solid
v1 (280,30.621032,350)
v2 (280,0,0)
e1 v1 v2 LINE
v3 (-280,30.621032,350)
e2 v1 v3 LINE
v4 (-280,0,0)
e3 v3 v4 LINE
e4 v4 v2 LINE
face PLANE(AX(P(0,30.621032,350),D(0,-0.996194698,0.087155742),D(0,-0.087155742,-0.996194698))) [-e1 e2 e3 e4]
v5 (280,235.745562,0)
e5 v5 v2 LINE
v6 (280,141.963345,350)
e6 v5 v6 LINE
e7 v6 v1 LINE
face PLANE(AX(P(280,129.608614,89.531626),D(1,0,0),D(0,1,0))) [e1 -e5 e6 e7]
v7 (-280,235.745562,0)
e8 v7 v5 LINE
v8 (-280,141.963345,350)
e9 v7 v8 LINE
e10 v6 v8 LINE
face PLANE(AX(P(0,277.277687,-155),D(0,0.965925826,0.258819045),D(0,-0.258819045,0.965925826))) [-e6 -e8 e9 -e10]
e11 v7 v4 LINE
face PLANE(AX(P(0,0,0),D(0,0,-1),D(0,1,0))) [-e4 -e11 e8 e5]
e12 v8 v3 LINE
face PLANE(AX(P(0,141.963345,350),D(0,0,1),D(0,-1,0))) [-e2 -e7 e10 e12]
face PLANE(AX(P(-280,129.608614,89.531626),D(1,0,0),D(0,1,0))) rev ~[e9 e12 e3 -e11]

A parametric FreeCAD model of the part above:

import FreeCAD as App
import Part
import Sketcher
Q = App.Units.Quantity


def add_polygon(sketch, points):
    """Adds a closed chain of lines whose ends are joined by coincident constraints."""
    first, n = sketch.GeometryCount, len(points)
    for a, b in zip(points, points[1:] + points[:1]):
        sketch.addGeometry(Part.LineSegment(App.Vector(*a, 0), App.Vector(*b, 0)), False)
    for i in range(n):
        sketch.addConstraint(Sketcher.Constraint("Coincident", first + i, 2, first + (i + 1) % n, 1))

doc = App.newDocument("Part")
params = doc.addObject("Spreadsheet::Sheet", "Params")
for row, (alias, value) in enumerate([
    ("sketch1_width", "100 mm"),
    ("sketch1_width2", "105 mm"),
    ("pad1_length", "560 mm"),
    ("sketch2_width", "105 mm"),
], start=1):
    params.set(f"A{row}", alias)
    params.set(f"B{row}", "=" + value)
    params.setAlias(f"B{row}", alias)

body = doc.addObject("PartDesign::Body", "Body")

# Sketch on YZ plane
sketch1 = body.newObject("Sketcher::SketchObject", "Sketch")
sketch1.AttachmentSupport = (doc.getObject("YZ_Plane"), [""])
sketch1.MapMode = "FlatFace"
add_polygon(sketch1, [(31, 350), (0, 0), (100, 0), (172, -155), (277, -155), (142, 350)])  # lines 0-5
sketch1.addConstraint(Sketcher.Constraint("Horizontal", 1))
sketch1.addConstraint(Sketcher.Constraint("Horizontal", 3))
sketch1.addConstraint(Sketcher.Constraint("Horizontal", 5))
sketch1.addConstraint(Sketcher.Constraint("Coincident", 0, 2, -1, 1))
sketch1.addConstraint(Sketcher.Constraint("DistanceX", 1, 1, 1, 2, Q("100 mm")))
sketch1.addConstraint(Sketcher.Constraint("DistanceX", 3, 1, 3, 2, Q("105 mm")))
sketch1.addConstraint(Sketcher.Constraint("Angle", 0, Q("-95 deg")))
sketch1.addConstraint(Sketcher.Constraint("Angle", 2, Q("-65 deg")))
sketch1.addConstraint(Sketcher.Constraint("Angle", 4, Q("105 deg")))
sketch1.addConstraint(Sketcher.Constraint("DistanceY", 2, 2, -1, 1, Q("155 mm")))
sketch1.addConstraint(Sketcher.Constraint("DistanceY", -1, 1, 4, 2, Q("350 mm")))
sketch1.setExpression("Constraints[10]", "Params.sketch1_width")
sketch1.setExpression("Constraints[11]", "Params.sketch1_width2")
pad1 = body.newObject("PartDesign::Pad", "Pad")
pad1.Profile = sketch1
pad1.setExpression("Length", "Params.pad1_length")
pad1.Midplane = True

# Sketch on YZ plane
sketch2 = body.newObject("Sketcher::SketchObject", "Sketch001")
sketch2.AttachmentSupport = (doc.getObject("YZ_Plane"), [""])
sketch2.MapMode = "FlatFace"
sketch2.AttachmentOffset = App.Placement(App.Vector(0, 0, -280), App.Rotation())
add_polygon(sketch2, [(172, -155), (100, 0), (236, 0), (277, -155)])  # lines 0-3
sketch2.addConstraint(Sketcher.Constraint("Horizontal", 1))
sketch2.addConstraint(Sketcher.Constraint("Horizontal", 3))
sketch2.addConstraint(Sketcher.Constraint("PointOnObject", 0, 2, -1))
sketch2.addConstraint(Sketcher.Constraint("DistanceX", 3, 2, 3, 1, Q("105 mm")))
sketch2.addConstraint(Sketcher.Constraint("Angle", 0, Q("115 deg")))
sketch2.addConstraint(Sketcher.Constraint("Angle", 2, Q("-75 deg")))
sketch2.addConstraint(Sketcher.Constraint("DistanceX", -1, 1, 0, 2, Q("100 mm")))
sketch2.addConstraint(Sketcher.Constraint("DistanceY", 2, 2, -1, 1, Q("155 mm")))
sketch2.setExpression("Constraints[7]", "Params.sketch2_width")
pocket1 = body.newObject("PartDesign::Pocket", "Pocket")
pocket1.Profile = sketch2
pocket1.Type = "ThroughAll"
pocket1.Reversed = True

doc.recompute()
